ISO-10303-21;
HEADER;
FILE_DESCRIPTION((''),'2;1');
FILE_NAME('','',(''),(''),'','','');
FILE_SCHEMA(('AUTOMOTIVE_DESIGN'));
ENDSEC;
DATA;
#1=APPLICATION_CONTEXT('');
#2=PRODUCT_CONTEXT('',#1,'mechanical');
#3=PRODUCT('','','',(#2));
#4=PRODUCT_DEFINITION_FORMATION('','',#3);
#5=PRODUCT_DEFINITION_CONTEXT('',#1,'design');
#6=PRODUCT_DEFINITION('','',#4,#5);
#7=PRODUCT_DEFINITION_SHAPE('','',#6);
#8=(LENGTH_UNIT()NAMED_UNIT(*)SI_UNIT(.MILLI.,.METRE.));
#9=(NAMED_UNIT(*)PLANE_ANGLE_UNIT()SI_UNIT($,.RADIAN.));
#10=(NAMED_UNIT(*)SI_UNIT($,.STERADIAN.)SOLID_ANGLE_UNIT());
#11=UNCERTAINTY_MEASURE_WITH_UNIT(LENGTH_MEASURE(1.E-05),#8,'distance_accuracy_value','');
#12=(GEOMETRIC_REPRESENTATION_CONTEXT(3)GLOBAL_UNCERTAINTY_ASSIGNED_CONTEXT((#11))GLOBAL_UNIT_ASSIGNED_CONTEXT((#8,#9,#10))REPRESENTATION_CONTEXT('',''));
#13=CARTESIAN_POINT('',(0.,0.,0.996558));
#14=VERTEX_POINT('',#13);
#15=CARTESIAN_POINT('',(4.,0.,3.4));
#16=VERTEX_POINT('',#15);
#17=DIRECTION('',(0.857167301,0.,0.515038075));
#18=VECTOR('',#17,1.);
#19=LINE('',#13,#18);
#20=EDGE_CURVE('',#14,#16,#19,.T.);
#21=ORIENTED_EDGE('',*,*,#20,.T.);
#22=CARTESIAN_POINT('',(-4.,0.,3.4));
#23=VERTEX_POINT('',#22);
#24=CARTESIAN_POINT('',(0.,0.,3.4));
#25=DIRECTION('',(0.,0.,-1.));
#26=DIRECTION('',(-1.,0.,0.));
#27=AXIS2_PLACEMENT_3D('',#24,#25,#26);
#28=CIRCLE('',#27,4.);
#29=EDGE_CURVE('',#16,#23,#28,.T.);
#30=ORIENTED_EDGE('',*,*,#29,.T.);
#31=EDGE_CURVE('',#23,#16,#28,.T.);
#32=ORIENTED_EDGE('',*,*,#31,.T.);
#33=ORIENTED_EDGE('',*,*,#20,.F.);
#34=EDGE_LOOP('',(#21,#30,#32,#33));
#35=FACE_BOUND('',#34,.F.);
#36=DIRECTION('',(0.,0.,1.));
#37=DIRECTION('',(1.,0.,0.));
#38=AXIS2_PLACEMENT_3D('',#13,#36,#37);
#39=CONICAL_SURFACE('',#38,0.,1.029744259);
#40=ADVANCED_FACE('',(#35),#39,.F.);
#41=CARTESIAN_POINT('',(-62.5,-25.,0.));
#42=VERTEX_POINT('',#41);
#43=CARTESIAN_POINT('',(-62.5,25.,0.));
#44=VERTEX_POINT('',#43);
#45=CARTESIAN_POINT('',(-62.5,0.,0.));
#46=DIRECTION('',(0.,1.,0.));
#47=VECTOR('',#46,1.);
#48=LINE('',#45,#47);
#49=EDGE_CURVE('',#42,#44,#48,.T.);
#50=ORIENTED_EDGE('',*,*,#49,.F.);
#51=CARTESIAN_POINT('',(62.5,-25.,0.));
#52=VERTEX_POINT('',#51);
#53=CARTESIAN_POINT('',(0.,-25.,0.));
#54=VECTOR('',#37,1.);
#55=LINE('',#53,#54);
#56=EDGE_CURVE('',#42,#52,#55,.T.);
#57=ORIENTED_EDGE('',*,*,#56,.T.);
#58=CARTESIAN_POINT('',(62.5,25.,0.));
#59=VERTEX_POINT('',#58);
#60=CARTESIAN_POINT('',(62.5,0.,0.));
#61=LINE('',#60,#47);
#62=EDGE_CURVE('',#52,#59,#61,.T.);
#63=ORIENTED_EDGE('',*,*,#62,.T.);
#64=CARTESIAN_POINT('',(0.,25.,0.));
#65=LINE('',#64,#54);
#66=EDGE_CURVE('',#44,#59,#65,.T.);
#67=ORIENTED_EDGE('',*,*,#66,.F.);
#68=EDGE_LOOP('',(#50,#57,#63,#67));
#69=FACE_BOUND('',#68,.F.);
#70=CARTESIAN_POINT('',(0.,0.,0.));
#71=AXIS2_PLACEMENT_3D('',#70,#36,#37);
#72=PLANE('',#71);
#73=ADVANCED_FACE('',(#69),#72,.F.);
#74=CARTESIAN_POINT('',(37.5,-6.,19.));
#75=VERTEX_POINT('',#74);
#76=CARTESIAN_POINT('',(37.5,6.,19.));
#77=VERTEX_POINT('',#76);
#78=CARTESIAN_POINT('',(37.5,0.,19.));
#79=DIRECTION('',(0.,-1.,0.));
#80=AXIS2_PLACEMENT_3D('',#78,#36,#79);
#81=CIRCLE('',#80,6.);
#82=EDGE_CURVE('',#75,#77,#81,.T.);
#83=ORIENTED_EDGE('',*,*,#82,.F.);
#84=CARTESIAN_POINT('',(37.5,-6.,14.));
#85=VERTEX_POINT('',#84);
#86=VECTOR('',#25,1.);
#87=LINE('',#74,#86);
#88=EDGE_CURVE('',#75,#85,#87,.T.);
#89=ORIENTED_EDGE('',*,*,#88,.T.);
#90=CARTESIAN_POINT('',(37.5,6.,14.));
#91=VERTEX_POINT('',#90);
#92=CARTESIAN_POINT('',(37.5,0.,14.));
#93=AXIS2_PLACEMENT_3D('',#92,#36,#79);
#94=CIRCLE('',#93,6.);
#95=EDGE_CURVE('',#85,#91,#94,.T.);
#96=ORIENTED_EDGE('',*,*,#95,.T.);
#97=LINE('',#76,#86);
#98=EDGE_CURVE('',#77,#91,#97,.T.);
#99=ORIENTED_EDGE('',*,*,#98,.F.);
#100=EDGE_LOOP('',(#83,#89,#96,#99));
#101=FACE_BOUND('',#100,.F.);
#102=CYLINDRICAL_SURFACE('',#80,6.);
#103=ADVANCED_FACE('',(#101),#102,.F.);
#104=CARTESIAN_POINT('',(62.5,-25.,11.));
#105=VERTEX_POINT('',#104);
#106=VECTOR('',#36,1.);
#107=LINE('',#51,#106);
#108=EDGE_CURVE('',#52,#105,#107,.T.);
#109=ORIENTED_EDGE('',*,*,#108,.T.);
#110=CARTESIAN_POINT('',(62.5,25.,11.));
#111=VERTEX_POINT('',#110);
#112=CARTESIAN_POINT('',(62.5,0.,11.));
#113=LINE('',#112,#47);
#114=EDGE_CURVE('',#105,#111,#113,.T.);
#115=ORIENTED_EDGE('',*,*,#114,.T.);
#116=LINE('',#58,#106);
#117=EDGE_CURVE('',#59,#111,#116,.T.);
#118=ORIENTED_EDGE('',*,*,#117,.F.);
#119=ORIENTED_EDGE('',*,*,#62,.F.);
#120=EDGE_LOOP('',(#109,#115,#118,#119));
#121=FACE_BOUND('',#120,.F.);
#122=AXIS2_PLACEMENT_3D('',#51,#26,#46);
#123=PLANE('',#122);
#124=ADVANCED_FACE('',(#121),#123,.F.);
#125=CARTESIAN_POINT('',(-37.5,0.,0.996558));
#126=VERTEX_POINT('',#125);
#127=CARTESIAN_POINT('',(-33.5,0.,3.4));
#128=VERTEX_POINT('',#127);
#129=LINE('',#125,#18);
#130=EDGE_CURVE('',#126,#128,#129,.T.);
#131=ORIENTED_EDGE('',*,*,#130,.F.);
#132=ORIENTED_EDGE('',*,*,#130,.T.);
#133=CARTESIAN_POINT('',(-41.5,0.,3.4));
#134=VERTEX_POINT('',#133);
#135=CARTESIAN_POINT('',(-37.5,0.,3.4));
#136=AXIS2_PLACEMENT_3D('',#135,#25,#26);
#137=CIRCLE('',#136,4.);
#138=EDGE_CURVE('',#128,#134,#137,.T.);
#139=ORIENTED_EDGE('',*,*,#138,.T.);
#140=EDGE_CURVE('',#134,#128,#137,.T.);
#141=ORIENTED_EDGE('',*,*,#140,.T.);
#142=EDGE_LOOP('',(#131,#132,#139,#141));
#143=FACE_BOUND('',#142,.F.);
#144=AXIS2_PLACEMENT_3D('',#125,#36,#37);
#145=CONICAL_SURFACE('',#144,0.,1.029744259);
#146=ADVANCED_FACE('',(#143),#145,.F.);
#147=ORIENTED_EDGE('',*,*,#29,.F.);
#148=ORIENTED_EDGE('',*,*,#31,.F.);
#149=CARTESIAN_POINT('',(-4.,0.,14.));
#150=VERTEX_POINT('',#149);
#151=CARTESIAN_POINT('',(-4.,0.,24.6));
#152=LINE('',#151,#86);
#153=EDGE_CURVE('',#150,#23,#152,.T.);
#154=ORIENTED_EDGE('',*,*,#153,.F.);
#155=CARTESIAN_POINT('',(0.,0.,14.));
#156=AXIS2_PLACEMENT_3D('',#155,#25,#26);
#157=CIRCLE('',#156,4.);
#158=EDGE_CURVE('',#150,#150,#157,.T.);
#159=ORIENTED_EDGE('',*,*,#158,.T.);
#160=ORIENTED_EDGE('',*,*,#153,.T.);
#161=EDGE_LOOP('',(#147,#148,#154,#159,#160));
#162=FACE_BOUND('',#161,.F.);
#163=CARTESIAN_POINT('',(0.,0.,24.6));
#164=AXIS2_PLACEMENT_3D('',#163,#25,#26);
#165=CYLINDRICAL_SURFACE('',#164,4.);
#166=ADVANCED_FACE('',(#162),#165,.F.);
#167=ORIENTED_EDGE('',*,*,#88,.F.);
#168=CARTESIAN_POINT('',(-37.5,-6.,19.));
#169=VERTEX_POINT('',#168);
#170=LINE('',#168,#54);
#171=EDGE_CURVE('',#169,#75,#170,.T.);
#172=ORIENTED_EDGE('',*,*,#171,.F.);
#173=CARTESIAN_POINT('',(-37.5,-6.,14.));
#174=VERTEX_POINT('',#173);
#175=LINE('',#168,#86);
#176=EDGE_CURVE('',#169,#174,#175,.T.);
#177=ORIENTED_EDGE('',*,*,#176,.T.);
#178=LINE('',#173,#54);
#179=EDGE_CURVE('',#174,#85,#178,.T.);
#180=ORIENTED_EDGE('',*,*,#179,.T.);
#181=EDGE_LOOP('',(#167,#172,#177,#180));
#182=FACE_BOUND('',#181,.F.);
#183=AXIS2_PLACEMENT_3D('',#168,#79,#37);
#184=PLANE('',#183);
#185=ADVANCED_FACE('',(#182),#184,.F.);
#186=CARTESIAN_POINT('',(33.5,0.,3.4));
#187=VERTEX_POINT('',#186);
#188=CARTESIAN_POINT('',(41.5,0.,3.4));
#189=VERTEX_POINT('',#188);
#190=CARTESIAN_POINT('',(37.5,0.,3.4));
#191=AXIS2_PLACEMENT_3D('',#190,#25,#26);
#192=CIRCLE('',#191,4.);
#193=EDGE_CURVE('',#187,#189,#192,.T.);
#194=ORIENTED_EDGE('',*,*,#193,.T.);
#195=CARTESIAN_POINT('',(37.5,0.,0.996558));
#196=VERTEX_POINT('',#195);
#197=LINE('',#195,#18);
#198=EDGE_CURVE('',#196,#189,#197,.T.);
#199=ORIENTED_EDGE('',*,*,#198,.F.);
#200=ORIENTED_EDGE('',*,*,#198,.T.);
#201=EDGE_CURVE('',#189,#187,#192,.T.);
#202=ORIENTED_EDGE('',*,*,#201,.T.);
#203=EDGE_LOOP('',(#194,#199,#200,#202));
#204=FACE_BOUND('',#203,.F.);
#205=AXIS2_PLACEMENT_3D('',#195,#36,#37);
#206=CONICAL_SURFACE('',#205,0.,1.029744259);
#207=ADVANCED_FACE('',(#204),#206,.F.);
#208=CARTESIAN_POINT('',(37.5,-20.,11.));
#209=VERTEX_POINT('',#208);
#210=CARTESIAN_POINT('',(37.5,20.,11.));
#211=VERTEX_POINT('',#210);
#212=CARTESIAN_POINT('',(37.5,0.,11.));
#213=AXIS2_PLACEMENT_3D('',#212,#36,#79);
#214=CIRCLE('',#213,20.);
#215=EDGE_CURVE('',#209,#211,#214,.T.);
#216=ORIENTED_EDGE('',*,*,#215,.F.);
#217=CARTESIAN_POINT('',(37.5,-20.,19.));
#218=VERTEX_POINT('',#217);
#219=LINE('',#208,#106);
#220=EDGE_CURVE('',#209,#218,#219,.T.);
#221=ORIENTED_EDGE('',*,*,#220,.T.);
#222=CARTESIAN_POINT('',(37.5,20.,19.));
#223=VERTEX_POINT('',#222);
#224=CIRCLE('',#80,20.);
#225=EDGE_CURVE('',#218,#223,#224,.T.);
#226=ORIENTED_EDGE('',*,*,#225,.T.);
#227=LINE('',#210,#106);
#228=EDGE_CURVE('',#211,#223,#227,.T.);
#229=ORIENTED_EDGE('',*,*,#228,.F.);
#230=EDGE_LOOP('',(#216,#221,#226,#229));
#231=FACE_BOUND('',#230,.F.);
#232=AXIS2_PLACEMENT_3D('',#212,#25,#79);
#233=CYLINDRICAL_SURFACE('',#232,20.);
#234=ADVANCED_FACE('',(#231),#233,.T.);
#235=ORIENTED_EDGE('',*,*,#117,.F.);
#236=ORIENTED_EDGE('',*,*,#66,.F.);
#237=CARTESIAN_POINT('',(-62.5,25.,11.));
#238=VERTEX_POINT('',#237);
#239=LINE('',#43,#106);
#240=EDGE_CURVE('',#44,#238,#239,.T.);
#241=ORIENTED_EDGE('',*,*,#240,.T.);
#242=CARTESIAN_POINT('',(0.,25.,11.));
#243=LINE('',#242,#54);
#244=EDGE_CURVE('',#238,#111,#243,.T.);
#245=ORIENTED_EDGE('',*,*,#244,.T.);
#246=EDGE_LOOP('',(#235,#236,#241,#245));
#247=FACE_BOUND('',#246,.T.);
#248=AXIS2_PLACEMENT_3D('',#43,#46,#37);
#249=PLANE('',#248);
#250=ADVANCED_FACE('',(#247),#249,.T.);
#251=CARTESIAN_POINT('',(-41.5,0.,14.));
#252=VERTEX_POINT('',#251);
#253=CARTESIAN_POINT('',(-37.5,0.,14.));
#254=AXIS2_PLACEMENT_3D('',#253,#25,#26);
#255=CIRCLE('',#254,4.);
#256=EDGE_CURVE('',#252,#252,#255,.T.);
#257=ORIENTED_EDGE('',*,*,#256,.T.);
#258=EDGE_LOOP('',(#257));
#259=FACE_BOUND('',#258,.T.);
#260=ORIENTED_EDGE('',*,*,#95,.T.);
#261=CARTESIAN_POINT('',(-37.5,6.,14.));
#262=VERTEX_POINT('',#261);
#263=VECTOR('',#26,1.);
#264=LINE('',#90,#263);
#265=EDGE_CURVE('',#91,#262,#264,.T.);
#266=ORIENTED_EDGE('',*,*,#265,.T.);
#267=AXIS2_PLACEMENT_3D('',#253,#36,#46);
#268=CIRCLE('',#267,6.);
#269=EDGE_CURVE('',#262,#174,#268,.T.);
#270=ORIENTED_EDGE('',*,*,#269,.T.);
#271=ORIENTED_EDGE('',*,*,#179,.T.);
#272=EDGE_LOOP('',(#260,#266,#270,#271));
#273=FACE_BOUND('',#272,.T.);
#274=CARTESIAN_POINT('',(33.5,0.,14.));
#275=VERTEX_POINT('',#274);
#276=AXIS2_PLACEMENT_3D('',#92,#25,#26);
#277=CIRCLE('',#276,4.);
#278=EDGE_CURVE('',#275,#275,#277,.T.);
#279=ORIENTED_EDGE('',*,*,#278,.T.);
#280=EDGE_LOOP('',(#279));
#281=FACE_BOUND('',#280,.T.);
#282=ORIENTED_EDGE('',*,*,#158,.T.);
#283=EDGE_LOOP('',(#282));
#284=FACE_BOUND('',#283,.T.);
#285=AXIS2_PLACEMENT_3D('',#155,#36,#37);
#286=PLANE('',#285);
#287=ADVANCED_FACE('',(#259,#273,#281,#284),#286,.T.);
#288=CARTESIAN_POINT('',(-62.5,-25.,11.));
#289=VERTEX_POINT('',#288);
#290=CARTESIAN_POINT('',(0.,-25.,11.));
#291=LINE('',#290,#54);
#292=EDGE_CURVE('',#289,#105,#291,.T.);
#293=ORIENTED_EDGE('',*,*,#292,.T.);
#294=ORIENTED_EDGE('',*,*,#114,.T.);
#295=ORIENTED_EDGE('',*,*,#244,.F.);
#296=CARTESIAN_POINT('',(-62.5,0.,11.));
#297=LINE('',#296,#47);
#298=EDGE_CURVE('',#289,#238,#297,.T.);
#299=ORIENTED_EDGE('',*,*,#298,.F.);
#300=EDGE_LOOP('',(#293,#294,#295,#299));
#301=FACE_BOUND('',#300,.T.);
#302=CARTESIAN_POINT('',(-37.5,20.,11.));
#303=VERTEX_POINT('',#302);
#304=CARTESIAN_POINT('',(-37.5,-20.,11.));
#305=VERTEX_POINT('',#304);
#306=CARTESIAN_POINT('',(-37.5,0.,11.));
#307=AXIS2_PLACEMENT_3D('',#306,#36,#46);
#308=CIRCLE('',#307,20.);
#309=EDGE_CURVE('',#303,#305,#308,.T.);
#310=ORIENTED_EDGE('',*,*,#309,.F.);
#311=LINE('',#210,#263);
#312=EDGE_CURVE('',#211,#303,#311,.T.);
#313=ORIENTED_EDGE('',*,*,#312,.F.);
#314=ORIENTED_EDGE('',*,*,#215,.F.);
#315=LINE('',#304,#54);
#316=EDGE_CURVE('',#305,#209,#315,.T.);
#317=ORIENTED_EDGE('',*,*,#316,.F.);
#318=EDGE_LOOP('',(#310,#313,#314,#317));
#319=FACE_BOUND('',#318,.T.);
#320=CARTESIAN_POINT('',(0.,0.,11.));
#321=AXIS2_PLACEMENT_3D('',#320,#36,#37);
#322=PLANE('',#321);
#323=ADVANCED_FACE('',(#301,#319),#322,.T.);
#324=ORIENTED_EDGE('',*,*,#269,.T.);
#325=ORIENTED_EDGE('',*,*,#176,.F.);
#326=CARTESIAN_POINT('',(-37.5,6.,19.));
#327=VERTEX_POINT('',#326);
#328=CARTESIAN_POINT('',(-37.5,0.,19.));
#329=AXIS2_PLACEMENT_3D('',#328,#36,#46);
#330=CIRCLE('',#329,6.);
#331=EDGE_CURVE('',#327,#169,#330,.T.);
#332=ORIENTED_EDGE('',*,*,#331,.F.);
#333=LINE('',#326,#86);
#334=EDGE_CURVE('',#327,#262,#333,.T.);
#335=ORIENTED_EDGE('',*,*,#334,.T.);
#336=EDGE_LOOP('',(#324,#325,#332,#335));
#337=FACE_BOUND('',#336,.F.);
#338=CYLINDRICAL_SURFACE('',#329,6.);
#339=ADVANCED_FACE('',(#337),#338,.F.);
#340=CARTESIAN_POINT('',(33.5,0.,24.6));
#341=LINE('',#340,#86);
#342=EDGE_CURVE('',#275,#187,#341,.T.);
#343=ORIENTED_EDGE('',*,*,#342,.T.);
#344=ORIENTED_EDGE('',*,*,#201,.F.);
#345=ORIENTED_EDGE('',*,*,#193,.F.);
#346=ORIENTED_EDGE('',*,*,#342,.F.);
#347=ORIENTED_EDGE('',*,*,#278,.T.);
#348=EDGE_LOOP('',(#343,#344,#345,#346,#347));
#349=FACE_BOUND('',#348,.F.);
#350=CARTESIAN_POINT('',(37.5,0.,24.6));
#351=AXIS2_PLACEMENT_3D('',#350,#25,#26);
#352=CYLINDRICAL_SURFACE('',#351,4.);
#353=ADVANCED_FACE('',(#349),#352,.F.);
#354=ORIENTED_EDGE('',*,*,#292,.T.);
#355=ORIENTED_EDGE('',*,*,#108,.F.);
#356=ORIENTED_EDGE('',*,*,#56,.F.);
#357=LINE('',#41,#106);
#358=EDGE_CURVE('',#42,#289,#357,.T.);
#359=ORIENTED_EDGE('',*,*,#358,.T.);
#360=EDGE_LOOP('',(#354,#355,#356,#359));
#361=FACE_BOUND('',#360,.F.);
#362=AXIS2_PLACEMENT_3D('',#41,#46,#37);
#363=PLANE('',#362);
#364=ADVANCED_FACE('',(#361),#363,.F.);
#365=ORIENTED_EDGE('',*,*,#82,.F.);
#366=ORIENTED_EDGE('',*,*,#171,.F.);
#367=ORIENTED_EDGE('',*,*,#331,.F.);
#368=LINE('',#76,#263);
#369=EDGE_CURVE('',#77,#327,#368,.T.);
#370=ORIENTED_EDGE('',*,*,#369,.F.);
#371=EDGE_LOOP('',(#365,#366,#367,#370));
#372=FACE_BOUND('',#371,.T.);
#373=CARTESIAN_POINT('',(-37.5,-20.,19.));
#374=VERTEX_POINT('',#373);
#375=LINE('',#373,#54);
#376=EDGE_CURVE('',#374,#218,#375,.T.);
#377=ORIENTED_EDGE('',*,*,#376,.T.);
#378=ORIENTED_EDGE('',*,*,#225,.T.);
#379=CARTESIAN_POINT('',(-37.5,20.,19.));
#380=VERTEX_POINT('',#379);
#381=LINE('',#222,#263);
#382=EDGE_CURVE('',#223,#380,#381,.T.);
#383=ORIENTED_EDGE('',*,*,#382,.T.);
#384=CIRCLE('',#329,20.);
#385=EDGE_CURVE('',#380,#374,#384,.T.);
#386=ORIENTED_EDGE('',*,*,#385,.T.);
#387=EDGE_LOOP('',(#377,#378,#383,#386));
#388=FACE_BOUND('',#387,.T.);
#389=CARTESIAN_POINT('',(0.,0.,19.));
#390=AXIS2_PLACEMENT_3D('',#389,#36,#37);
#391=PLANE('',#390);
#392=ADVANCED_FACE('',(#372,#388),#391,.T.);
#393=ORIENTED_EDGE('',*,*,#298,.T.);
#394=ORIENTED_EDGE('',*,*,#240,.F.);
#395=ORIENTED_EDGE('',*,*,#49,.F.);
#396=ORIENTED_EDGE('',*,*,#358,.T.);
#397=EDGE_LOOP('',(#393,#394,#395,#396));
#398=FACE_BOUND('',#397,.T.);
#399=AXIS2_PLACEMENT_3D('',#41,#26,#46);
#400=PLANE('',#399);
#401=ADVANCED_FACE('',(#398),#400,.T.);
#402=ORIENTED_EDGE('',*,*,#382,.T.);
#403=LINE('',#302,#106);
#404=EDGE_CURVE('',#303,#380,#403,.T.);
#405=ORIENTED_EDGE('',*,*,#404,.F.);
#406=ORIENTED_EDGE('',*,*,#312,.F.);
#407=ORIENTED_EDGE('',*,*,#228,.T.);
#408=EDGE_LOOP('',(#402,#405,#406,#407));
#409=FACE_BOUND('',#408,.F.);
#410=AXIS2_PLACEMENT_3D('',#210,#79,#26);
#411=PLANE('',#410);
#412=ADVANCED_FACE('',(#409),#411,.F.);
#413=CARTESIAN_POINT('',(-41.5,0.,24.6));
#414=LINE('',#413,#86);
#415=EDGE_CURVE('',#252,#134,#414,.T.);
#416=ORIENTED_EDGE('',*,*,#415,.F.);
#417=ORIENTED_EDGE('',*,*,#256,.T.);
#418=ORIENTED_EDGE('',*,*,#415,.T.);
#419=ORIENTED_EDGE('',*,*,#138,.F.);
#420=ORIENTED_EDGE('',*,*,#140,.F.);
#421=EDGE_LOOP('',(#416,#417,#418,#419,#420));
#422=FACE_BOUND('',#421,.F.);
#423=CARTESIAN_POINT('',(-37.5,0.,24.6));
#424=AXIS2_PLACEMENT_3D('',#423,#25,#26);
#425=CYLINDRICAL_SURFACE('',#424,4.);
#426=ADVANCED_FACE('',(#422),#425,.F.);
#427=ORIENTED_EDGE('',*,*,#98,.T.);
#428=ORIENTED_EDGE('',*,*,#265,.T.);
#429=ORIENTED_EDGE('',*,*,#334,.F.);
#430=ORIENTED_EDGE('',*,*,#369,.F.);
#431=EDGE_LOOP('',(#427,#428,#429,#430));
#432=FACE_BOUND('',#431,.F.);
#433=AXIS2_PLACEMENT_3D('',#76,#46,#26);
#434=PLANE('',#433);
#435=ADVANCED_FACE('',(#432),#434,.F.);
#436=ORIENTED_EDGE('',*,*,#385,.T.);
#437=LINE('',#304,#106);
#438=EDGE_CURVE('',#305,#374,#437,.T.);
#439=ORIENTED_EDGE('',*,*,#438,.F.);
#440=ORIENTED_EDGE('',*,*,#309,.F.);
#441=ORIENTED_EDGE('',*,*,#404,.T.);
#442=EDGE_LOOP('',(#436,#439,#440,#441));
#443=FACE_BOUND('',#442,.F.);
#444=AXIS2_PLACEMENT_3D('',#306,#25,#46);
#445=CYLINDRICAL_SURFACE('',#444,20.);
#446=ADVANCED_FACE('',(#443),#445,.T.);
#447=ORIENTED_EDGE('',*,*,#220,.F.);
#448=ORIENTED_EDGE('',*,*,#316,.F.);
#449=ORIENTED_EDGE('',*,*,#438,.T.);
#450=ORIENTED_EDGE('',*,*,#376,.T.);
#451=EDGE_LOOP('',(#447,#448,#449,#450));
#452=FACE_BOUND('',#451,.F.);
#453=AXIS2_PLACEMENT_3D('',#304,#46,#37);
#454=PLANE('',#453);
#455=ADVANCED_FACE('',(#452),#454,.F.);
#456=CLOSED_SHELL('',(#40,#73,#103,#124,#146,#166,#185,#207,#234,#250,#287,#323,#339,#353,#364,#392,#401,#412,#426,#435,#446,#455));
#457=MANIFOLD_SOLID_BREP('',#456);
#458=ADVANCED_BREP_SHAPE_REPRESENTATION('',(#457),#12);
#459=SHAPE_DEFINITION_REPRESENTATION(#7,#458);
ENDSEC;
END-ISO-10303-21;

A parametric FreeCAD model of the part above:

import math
import FreeCAD as App
import Part
import Sketcher

V = App.Vector
Q = App.Units.Quantity

doc = App.newDocument("Part")
body = doc.addObject("PartDesign::Body", "Body")

# Sketch on XY plane
sketch1 = doc.addObject("Sketcher::SketchObject", "Sketch")
body.addObject(sketch1)
sketch1.AttachmentSupport = (doc.XY_Plane, [""])
sketch1.MapMode = "FlatFace"
sketch1.addGeometry([
    Part.LineSegment(V(-62.5, 25, 0), V(-62.5, -25, 0)),
    Part.LineSegment(V(-62.5, -25, 0), V(62.5, -25, 0)),
    Part.LineSegment(V(62.5, -25, 0), V(62.5, 25, 0)),
    Part.LineSegment(V(62.5, 25, 0), V(-62.5, 25, 0)),
], False)
sketch1.addConstraint([
    Sketcher.Constraint("Coincident", 0, 2, 1, 1),
    Sketcher.Constraint("Coincident", 1, 2, 2, 1),
    Sketcher.Constraint("Coincident", 2, 2, 3, 1),
    Sketcher.Constraint("Coincident", 3, 2, 0, 1),
    Sketcher.Constraint("Vertical", 0),
    Sketcher.Constraint("Horizontal", 1),
    Sketcher.Constraint("Vertical", 2),
    Sketcher.Constraint("Horizontal", 3),
    Sketcher.Constraint("Symmetric", 0, 2, 2, 2, -1, 1),
    Sketcher.Constraint("DistanceX", 1, 1, 1, 2, Q("125 mm")),
    Sketcher.Constraint("DistanceY", 0, 2, 0, 1, Q("50 mm")),
])
pad1 = doc.addObject("PartDesign::Pad", "Pad")
body.addObject(pad1)
pad1.Profile = sketch1
pad1.Length = 11

# Sketch on XY plane
sketch2 = doc.addObject("Sketcher::SketchObject", "Sketch001")
body.addObject(sketch2)
sketch2.AttachmentSupport = (doc.XY_Plane, [""])
sketch2.MapMode = "FlatFace"
sketch2.AttachmentOffset = App.Placement(V(0, 0, 11), App.Rotation())
sketch2.addGeometry([
    Part.ArcOfCircle(Part.Circle(V(37.5, 0, 0), V(0, 0, 1), 20), math.radians(-90), math.radians(90)),
    Part.LineSegment(V(37.5, 20, 0), V(-37.5, 20, 0)),
    Part.ArcOfCircle(Part.Circle(V(-37.5, 0, 0), V(0, 0, 1), 20), math.radians(90), math.radians(270)),
    Part.LineSegment(V(-37.5, -20, 0), V(37.5, -20, 0)),
], False)
sketch2.addConstraint([
    Sketcher.Constraint("Tangent", 0, 2, 1, 1),
    Sketcher.Constraint("Tangent", 1, 2, 2, 1),
    Sketcher.Constraint("Tangent", 2, 2, 3, 1),
    Sketcher.Constraint("Tangent", 3, 2, 0, 1),
    Sketcher.Constraint("Horizontal", 1),
    Sketcher.Constraint("Horizontal", 3),
    Sketcher.Constraint("Symmetric", 0, 3, 2, 3, -1, 1),
    Sketcher.Constraint("Radius", 0, Q("20 mm")),
    Sketcher.Constraint("DistanceX", 1, 2, 1, 1, Q("75 mm")),
])
pad2 = doc.addObject("PartDesign::Pad", "Pad001")
body.addObject(pad2)
pad2.Profile = sketch2
pad2.Length = 8

# Sketch on XY plane
sketch3 = doc.addObject("Sketcher::SketchObject", "Sketch002")
body.addObject(sketch3)
sketch3.AttachmentSupport = (doc.XY_Plane, [""])
sketch3.MapMode = "FlatFace"
sketch3.AttachmentOffset = App.Placement(V(0, 0, 19), App.Rotation())
sketch3.addGeometry([
    Part.ArcOfCircle(Part.Circle(V(37.5, 0, 0), V(0, 0, 1), 6), math.radians(-90), math.radians(90)),
    Part.LineSegment(V(37.5, 6, 0), V(-37.5, 6, 0)),
    Part.ArcOfCircle(Part.Circle(V(-37.5, 0, 0), V(0, 0, 1), 6), math.radians(90), math.radians(270)),
    Part.LineSegment(V(-37.5, -6, 0), V(37.5, -6, 0)),
], False)
sketch3.addConstraint([
    Sketcher.Constraint("Tangent", 0, 2, 1, 1),
    Sketcher.Constraint("Tangent", 1, 2, 2, 1),
    Sketcher.Constraint("Tangent", 2, 2, 3, 1),
    Sketcher.Constraint("Tangent", 3, 2, 0, 1),
    Sketcher.Constraint("Horizontal", 1),
    Sketcher.Constraint("Horizontal", 3),
    Sketcher.Constraint("Symmetric", 0, 3, 2, 3, -1, 1),
    Sketcher.Constraint("Radius", 0, Q("6 mm")),
    Sketcher.Constraint("DistanceX", 1, 2, 1, 1, Q("75 mm")),
])
pocket1 = doc.addObject("PartDesign::Pocket", "Pocket")
body.addObject(pocket1)
pocket1.Profile = sketch3
pocket1.Length = 5

# Sketch on XY plane
sketch4 = doc.addObject("Sketcher::SketchObject", "Sketch003")
body.addObject(sketch4)
sketch4.AttachmentSupport = (doc.XY_Plane, [""])
sketch4.MapMode = "FlatFace"
sketch4.AttachmentOffset = App.Placement(V(0, 0, 14), App.Rotation())
sketch4.addGeometry(Part.Circle(V(0, 0, 0), V(0, 0, 1), 4), False)
sketch4.addConstraint([
    Sketcher.Constraint("Coincident", 0, 3, -1, 1),
    Sketcher.Constraint("Diameter", 0, Q("8 mm")),
])
doc.recompute()
hole = doc.addObject("PartDesign::Hole", "Hole")
body.addObject(hole)
hole.Profile = sketch4
hole.ThreadType = "None"
hole.Diameter = 8
hole.DepthType = "Dimension"
hole.Depth = 10.6
hole.DrillPoint = "Angled"
hole.DrillPointAngle = 118

# Sketch on XY plane
sketch5 = doc.addObject("Sketcher::SketchObject", "Sketch004")
body.addObject(sketch5)
sketch5.AttachmentSupport = (doc.XY_Plane, [""])
sketch5.MapMode = "FlatFace"
sketch5.AttachmentOffset = App.Placement(V(0, 0, 14), App.Rotation())
sketch5.addGeometry([
    Part.Circle(V(-37.5, 0, 0), V(0, 0, 1), 4),
    Part.Circle(V(37.5, 0, 0), V(0, 0, 1), 4),
], False)
sketch5.addConstraint([
    Sketcher.Constraint("Equal", 0, 1),
    Sketcher.Constraint("Symmetric", 0, 3, 1, 3, -1, 1),
    Sketcher.Constraint("PointOnObject", 0, 3, -1),
    Sketcher.Constraint("Diameter", 0, Q("8 mm")),
    Sketcher.Constraint("DistanceX", 0, 3, 1, 3, Q("75 mm")),
])
doc.recompute()
hole2 = doc.addObject("PartDesign::Hole", "Hole001")
body.addObject(hole2)
hole2.Profile = sketch5
hole2.ThreadType = "None"
hole2.Diameter = 8
hole2.DepthType = "Dimension"
hole2.Depth = 10.6
hole2.DrillPoint = "Angled"
hole2.DrillPointAngle = 118

doc.recompute()
